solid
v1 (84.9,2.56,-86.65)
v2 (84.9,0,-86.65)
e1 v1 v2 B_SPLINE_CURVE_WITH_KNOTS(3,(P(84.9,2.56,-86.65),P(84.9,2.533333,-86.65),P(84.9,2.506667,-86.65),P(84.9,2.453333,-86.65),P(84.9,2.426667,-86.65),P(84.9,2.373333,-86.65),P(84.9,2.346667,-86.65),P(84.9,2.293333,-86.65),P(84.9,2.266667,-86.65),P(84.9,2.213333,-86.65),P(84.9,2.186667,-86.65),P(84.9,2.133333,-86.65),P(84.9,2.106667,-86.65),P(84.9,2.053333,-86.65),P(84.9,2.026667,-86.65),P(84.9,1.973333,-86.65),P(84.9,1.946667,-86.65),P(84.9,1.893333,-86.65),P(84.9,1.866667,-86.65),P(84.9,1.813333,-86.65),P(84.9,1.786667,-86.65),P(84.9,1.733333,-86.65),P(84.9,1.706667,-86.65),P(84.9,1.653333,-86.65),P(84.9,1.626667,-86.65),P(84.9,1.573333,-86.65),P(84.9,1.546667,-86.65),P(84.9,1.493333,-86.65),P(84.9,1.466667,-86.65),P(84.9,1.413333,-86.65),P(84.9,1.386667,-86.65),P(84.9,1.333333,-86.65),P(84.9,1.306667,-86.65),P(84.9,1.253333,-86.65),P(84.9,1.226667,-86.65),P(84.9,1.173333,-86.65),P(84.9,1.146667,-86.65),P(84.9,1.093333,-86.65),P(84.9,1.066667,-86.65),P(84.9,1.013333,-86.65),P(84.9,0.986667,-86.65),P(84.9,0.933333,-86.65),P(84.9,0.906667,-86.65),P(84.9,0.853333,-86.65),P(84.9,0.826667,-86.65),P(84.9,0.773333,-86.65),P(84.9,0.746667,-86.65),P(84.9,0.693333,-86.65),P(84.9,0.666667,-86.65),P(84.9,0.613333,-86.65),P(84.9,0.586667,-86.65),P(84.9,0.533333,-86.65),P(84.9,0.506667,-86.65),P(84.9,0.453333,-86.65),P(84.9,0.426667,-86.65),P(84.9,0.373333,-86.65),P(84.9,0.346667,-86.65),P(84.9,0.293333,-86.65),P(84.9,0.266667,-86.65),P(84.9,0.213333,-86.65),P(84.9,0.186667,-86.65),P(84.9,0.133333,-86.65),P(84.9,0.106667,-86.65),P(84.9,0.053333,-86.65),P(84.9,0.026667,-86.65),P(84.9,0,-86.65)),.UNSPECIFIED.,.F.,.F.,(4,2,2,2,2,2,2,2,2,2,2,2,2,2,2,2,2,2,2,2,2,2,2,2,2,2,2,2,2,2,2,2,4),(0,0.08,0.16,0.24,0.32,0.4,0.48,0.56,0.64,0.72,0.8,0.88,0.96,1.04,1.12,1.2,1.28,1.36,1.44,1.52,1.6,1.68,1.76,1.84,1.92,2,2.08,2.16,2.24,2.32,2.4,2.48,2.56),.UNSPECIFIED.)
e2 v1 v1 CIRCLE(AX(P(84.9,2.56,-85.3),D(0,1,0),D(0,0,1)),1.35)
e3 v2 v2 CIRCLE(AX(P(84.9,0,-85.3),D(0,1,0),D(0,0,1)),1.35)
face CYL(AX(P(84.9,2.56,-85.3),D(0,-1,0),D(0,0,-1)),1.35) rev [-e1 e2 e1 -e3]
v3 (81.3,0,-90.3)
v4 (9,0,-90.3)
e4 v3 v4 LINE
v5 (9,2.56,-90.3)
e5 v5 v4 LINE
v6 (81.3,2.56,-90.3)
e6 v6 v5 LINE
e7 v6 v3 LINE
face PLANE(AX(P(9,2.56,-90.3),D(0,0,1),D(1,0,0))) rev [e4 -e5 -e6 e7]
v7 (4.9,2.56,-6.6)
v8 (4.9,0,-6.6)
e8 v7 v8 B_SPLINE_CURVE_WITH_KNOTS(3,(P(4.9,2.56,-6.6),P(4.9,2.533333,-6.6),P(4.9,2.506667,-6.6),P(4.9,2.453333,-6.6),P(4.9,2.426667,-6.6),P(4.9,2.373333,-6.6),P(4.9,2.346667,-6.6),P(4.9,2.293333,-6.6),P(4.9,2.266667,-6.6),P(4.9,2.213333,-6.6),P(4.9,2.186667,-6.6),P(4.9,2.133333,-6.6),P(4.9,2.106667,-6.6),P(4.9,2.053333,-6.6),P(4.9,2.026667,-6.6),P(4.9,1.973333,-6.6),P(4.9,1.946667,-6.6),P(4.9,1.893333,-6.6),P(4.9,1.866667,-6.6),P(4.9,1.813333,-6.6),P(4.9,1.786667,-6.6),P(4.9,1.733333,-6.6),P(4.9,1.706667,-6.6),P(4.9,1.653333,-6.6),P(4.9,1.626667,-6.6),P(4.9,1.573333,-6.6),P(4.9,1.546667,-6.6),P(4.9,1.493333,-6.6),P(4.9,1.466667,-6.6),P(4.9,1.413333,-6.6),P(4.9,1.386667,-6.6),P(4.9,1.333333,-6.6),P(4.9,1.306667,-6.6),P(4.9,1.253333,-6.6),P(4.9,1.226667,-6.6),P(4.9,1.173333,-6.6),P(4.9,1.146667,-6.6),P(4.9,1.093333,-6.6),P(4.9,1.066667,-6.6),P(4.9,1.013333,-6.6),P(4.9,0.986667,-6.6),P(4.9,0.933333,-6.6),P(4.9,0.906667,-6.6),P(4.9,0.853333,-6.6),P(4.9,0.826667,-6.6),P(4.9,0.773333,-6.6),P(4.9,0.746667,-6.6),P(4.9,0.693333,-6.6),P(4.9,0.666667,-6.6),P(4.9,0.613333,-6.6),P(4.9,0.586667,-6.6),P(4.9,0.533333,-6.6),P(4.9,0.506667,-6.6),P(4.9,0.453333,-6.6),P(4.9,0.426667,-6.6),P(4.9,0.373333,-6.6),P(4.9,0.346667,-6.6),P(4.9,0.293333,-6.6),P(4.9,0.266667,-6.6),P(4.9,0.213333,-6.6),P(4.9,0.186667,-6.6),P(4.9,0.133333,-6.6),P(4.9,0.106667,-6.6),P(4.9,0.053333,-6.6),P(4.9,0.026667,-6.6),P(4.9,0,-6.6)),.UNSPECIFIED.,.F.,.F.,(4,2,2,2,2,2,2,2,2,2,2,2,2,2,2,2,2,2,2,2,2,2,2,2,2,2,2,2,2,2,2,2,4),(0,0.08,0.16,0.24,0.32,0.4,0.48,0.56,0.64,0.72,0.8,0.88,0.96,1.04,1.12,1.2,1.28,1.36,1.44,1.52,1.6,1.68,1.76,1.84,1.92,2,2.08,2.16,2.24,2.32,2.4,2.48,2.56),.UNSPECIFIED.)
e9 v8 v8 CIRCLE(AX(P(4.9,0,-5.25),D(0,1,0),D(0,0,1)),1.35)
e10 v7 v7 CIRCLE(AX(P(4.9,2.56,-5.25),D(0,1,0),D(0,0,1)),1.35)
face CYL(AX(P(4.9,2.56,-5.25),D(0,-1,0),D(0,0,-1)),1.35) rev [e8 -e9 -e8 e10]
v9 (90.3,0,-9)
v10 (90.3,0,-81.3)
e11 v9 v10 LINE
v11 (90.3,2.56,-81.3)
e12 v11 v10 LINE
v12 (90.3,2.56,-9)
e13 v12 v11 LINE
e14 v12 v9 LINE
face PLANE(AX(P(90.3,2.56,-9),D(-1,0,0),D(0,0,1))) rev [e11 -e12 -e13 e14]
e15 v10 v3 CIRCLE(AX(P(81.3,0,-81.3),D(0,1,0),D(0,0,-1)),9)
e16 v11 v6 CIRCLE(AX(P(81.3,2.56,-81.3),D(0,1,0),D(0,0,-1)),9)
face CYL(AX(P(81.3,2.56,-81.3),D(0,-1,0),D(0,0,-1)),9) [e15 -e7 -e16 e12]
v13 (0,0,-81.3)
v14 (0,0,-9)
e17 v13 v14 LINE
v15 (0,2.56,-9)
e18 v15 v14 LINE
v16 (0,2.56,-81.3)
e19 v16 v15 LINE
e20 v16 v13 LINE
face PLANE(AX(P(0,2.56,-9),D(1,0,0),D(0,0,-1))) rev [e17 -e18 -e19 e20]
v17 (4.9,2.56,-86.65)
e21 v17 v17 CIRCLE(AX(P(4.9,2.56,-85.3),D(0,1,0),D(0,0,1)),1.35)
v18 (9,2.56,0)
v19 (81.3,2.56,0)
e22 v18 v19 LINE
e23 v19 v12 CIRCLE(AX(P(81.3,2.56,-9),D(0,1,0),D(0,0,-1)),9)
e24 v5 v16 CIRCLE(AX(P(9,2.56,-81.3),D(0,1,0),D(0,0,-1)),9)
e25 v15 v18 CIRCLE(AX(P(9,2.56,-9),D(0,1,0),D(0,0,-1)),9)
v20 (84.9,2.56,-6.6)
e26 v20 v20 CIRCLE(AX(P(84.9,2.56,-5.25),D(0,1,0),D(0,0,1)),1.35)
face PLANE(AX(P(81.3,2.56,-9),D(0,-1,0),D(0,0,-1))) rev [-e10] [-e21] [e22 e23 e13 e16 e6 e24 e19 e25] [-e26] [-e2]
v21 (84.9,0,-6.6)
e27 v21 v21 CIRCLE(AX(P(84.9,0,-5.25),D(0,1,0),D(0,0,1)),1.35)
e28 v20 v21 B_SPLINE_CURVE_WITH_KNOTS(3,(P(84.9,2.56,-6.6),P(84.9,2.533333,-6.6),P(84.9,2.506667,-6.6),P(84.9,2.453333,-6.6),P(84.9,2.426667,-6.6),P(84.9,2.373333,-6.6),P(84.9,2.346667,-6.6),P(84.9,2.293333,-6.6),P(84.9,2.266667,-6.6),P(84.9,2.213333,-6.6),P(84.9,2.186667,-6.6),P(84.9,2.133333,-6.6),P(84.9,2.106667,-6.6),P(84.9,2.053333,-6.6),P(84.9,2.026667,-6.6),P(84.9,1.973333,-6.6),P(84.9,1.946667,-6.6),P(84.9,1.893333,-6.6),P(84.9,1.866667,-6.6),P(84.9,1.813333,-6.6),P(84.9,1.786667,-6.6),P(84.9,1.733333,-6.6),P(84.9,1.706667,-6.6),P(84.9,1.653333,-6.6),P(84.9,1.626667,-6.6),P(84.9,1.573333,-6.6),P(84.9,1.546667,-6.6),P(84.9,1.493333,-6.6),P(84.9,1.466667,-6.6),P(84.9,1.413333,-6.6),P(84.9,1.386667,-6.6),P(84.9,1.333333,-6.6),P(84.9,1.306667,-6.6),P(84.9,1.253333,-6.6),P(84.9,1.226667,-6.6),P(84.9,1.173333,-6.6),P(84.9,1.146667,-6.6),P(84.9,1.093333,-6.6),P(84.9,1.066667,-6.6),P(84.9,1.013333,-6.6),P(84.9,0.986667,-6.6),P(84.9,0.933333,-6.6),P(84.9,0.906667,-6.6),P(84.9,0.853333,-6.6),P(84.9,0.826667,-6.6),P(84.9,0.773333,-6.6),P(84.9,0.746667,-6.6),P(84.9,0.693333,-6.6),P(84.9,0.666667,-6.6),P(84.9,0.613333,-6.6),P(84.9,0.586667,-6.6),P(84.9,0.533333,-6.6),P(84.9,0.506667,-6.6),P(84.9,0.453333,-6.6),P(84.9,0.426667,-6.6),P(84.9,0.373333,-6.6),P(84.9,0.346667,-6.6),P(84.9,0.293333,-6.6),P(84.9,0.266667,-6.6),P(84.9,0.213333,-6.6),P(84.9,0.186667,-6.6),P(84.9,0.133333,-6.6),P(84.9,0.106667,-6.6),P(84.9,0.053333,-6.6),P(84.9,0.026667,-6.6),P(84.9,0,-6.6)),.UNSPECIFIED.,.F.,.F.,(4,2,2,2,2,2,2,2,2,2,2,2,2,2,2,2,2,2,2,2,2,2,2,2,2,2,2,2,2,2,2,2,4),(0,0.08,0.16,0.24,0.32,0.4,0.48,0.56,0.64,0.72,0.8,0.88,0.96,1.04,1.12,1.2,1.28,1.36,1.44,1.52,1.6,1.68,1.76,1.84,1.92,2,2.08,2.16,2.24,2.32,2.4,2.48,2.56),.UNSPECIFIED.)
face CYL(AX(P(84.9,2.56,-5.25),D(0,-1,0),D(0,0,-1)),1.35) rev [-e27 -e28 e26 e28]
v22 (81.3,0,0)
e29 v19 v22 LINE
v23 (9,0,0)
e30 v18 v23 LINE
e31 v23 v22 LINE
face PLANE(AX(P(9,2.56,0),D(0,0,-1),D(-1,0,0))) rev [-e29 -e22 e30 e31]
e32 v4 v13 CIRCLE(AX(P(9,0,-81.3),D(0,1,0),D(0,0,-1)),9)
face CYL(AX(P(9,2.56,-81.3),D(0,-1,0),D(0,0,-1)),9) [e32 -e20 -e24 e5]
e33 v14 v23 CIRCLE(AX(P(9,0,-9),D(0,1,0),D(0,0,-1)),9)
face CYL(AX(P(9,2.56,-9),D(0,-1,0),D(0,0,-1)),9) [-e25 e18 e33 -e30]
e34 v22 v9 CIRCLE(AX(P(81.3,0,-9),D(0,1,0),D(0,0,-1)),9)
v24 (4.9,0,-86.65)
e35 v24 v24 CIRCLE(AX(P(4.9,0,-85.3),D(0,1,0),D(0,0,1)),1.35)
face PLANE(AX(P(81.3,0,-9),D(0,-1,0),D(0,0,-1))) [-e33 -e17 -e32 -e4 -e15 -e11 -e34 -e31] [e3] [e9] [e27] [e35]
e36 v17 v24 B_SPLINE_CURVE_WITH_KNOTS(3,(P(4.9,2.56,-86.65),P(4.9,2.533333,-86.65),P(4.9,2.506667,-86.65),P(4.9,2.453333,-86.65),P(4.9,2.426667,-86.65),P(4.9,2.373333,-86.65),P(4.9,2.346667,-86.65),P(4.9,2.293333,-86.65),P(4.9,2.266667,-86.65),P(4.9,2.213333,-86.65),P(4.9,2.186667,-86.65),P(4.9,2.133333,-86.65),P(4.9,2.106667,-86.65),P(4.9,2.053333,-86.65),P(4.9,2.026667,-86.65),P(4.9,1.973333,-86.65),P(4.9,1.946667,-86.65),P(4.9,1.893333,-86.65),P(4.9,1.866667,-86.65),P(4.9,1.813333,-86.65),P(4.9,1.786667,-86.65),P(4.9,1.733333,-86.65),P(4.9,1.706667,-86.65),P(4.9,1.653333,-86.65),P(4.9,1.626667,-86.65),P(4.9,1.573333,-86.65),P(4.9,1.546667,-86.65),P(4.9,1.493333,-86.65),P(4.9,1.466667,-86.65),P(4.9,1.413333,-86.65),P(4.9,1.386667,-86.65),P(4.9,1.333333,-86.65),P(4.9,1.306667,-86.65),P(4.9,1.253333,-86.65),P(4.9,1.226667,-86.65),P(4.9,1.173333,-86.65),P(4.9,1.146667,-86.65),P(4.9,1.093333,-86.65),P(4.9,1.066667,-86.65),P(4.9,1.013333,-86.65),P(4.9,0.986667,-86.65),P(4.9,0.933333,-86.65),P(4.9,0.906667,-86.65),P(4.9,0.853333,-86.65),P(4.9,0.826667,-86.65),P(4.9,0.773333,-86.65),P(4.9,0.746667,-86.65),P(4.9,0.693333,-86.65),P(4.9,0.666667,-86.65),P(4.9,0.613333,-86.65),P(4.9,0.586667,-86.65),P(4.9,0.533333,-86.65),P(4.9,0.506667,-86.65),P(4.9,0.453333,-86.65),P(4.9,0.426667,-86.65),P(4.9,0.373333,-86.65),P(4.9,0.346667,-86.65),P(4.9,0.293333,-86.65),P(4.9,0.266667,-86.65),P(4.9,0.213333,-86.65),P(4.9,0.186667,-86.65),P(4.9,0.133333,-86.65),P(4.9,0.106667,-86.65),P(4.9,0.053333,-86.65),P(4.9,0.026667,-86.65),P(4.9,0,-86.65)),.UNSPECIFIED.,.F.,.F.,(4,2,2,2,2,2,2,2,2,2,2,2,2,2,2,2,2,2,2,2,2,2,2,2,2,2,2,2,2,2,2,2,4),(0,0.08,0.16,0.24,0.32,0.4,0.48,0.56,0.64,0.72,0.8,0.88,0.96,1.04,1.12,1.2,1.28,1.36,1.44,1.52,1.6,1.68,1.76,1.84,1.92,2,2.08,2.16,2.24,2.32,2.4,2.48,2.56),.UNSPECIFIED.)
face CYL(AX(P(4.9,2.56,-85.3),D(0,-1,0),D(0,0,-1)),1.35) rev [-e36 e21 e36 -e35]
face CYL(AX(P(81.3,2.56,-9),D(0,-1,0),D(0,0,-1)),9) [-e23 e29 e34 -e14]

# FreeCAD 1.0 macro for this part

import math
import FreeCAD as App
import Part
import Sketcher
Q = App.Units.Quantity

doc = App.newDocument("Part")
body = doc.addObject("PartDesign::Body", "Body")

# Sketch on XZ plane
sketch1 = doc.addObject("Sketcher::SketchObject", "Sketch")
body.addObject(sketch1)
sketch1.AttachmentSupport = (doc.XZ_Plane, [""])
sketch1.MapMode = "FlatFace"
sketch1.addGeometry([
    Part.LineSegment(App.Vector(9, 0, 0), App.Vector(81.3, 0, 0)),  # 0
    Part.ArcOfCircle(Part.Circle(App.Vector(81.3, -9, 0), App.Vector(0, 0, 1), 9), math.radians(0), math.radians(90)),  # 1
    Part.LineSegment(App.Vector(90.3, -9, 0), App.Vector(90.3, -81.3, 0)),  # 2
    Part.ArcOfCircle(Part.Circle(App.Vector(81.3, -81.3, 0), App.Vector(0, 0, 1), 9), math.radians(-90), math.radians(0)),  # 3
    Part.LineSegment(App.Vector(81.3, -90.3, 0), App.Vector(9, -90.3, 0)),  # 4
    Part.ArcOfCircle(Part.Circle(App.Vector(9, -81.3, 0), App.Vector(0, 0, 1), 9), math.radians(180), math.radians(270)),  # 5
    Part.LineSegment(App.Vector(0, -81.3, 0), App.Vector(0, -9, 0)),  # 6
    Part.ArcOfCircle(Part.Circle(App.Vector(9, -9, 0), App.Vector(0, 0, 1), 9), math.radians(90), math.radians(180)),  # 7
    Part.Circle(App.Vector(4.9, -5.25, 0), App.Vector(0, 0, 1), 1.35),  # 8
    Part.Circle(App.Vector(84.9, -5.25, 0), App.Vector(0, 0, 1), 1.35),  # 9
    Part.Circle(App.Vector(4.9, -85.3, 0), App.Vector(0, 0, 1), 1.35),  # 10
    Part.Circle(App.Vector(84.9, -85.3, 0), App.Vector(0, 0, 1), 1.35),  # 11
], False)
sketch1.addConstraint([
    Sketcher.Constraint("Tangent", 0, 2, 1, 2),
    Sketcher.Constraint("Tangent", 1, 1, 2, 1),
    Sketcher.Constraint("Tangent", 2, 2, 3, 2),
    Sketcher.Constraint("Tangent", 3, 1, 4, 1),
    Sketcher.Constraint("Tangent", 4, 2, 5, 2),
    Sketcher.Constraint("Tangent", 5, 1, 6, 1),
    Sketcher.Constraint("Tangent", 6, 2, 7, 2),
    Sketcher.Constraint("Tangent", 7, 1, 0, 1),
    Sketcher.Constraint("Horizontal", 0),
    Sketcher.Constraint("Vertical", 2),
    Sketcher.Constraint("Horizontal", 4),
    Sketcher.Constraint("Vertical", 6),
    Sketcher.Constraint("Equal", 1, 3),
    Sketcher.Constraint("Equal", 3, 5),
    Sketcher.Constraint("Equal", 5, 7),
    Sketcher.Constraint("Equal", 8, 9),
    Sketcher.Constraint("Equal", 9, 10),
    Sketcher.Constraint("Equal", 10, 11),
    Sketcher.Constraint("PointOnObject", 0, 2, -1),
    Sketcher.Constraint("PointOnObject", 5, 1, -2),
    Sketcher.Constraint("Horizontal", 8, 3, 9, 3),
    Sketcher.Constraint("Horizontal", 10, 3, 11, 3),
    Sketcher.Constraint("Vertical", 8, 3, 10, 3),
    Sketcher.Constraint("Vertical", 9, 3, 11, 3),
    Sketcher.Constraint("Equal", 4, 2),
    Sketcher.Constraint("Radius", 1, Q("9 mm")),
    Sketcher.Constraint("Diameter", 8, Q("2.7 mm")),
    Sketcher.Constraint("DistanceX", 0, 1, 0, 2, Q("72.3 mm")),
    Sketcher.Constraint("DistanceX", 8, 3, 9, 3, Q("80 mm")),
    Sketcher.Constraint("DistanceY", 10, 3, 5, 3, Q("4 mm")),
    Sketcher.Constraint("DistanceX", -1, 1, 8, 3, Q("4.9 mm")),
    Sketcher.Constraint("DistanceY", 8, 3, -1, 1, Q("5.25 mm")),
])
pad1 = doc.addObject("PartDesign::Pad", "Pad")
body.addObject(pad1)
pad1.Profile = sketch1
pad1.Length = 2.56
pad1.Reversed = True

doc.recompute()
